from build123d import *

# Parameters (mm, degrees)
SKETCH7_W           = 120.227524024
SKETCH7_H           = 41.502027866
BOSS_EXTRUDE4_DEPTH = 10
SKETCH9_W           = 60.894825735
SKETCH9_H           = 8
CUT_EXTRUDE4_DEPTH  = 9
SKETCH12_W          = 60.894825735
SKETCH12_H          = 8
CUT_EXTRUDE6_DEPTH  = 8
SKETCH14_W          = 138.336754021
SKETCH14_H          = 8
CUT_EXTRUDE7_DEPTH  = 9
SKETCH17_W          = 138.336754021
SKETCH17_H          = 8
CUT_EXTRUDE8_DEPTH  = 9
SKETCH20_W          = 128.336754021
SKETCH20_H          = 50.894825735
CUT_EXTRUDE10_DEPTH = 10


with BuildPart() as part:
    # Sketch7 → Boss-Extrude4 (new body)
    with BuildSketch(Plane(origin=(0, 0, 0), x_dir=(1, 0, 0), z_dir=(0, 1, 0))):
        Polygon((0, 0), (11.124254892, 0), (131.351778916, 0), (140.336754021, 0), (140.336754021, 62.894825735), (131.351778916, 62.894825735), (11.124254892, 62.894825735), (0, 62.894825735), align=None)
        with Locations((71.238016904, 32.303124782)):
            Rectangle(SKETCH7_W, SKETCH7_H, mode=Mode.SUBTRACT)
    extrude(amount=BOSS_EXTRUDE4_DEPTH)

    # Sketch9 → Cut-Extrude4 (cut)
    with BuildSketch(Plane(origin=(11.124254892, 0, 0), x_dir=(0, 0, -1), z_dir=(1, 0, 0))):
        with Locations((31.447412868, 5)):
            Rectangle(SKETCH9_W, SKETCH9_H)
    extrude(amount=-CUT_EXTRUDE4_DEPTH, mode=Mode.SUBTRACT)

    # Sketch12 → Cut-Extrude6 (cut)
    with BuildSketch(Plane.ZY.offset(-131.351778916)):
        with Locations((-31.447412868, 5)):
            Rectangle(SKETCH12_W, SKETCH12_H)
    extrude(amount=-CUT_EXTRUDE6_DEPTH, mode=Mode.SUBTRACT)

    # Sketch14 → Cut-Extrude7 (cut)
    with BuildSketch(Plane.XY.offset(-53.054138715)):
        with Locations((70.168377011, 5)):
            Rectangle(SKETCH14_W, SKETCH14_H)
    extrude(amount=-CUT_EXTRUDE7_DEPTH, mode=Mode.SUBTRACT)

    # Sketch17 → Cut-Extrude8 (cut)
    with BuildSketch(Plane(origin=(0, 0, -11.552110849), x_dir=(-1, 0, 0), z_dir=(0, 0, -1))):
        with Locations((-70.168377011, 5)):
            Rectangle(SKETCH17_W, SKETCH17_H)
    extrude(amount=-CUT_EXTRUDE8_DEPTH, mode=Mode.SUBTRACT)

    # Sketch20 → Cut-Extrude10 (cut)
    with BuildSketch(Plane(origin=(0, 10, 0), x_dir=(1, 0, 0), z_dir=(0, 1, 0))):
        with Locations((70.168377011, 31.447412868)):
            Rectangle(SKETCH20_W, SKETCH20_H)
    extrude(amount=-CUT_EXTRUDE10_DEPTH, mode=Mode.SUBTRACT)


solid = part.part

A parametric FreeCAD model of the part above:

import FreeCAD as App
import Part
import Sketcher
Q = App.Units.Quantity

doc = App.newDocument("Part")
body = doc.addObject("PartDesign::Body", "Body")

sketch1 = body.newObject("Sketcher::SketchObject", "Sketch")
sketch1.AttachmentSupport = (doc.getObject("XZ_Plane"), [""])
sketch1.MapMode = "FlatFace"
sketch1.addGeometry(Part.LineSegment(App.Vector(0, 0, 0), App.Vector(140, 0, 0)), False)
sketch1.addGeometry(Part.LineSegment(App.Vector(140, 0, 0), App.Vector(140, -63, 0)), False)
sketch1.addGeometry(Part.LineSegment(App.Vector(140, -63, 0), App.Vector(0, -63, 0)), False)
sketch1.addGeometry(Part.LineSegment(App.Vector(0, -63, 0), App.Vector(0, 0, 0)), False)
sketch1.addGeometry(Part.LineSegment(App.Vector(131, -12, 0), App.Vector(11, -12, 0)), False)
sketch1.addGeometry(Part.LineSegment(App.Vector(11, -12, 0), App.Vector(11, -53, 0)), False)
sketch1.addGeometry(Part.LineSegment(App.Vector(11, -53, 0), App.Vector(131, -53, 0)), False)
sketch1.addGeometry(Part.LineSegment(App.Vector(131, -53, 0), App.Vector(131, -12, 0)), False)
sketch1.addConstraint(Sketcher.Constraint("Coincident", 0, 2, 1, 1))
sketch1.addConstraint(Sketcher.Constraint("Coincident", 1, 2, 2, 1))
sketch1.addConstraint(Sketcher.Constraint("Coincident", 2, 2, 3, 1))
sketch1.addConstraint(Sketcher.Constraint("Coincident", 3, 2, 0, 1))
sketch1.addConstraint(Sketcher.Constraint("Coincident", 4, 2, 5, 1))
sketch1.addConstraint(Sketcher.Constraint("Coincident", 5, 2, 6, 1))
sketch1.addConstraint(Sketcher.Constraint("Coincident", 6, 2, 7, 1))
sketch1.addConstraint(Sketcher.Constraint("Coincident", 7, 2, 4, 1))
sketch1.addConstraint(Sketcher.Constraint("Horizontal", 0))
sketch1.addConstraint(Sketcher.Constraint("Vertical", 1))
sketch1.addConstraint(Sketcher.Constraint("Horizontal", 2))
sketch1.addConstraint(Sketcher.Constraint("Vertical", 3))
sketch1.addConstraint(Sketcher.Constraint("Horizontal", 4))
sketch1.addConstraint(Sketcher.Constraint("Vertical", 5))
sketch1.addConstraint(Sketcher.Constraint("Horizontal", 6))
sketch1.addConstraint(Sketcher.Constraint("Vertical", 7))
sketch1.addConstraint(Sketcher.Constraint("Coincident", 3, 2, -1, 1))
sketch1.addConstraint(Sketcher.Constraint("DistanceX", 4, 2, 0, 2, Q("129.212499 mm")))
sketch1.addConstraint(Sketcher.Constraint("DistanceX", 0, 1, 0, 2, Q("140.336754 mm")))
sketch1.addConstraint(Sketcher.Constraint("DistanceX", 4, 2, 4, 1, Q("120.227524 mm")))
sketch1.addConstraint(Sketcher.Constraint("DistanceY", 1, 2, 1, 1, Q("62.894826 mm")))
sketch1.addConstraint(Sketcher.Constraint("DistanceY", 5, 2, 5, 1, Q("41.502028 mm")))
sketch1.addConstraint(Sketcher.Constraint("DistanceY", 4, 2, -1, 1, Q("11.552111 mm")))
pad1 = body.newObject("PartDesign::Pad", "Pad")
pad1.Profile = sketch1
pad1.Length = 10
pad1.Reversed = True

sketch2 = body.newObject("Sketcher::SketchObject", "Sketch001")
sketch2.AttachmentSupport = (doc.getObject("YZ_Plane"), [""])
sketch2.MapMode = "FlatFace"
sketch2.AttachmentOffset = App.Placement(App.Vector(0, 0, 11.124255), App.Rotation())
sketch2.addGeometry(Part.LineSegment(App.Vector(9, -1, 0), App.Vector(1, -1, 0)), False)
sketch2.addGeometry(Part.LineSegment(App.Vector(1, -1, 0), App.Vector(1, -62, 0)), False)
sketch2.addGeometry(Part.LineSegment(App.Vector(1, -62, 0), App.Vector(9, -62, 0)), False)
sketch2.addGeometry(Part.LineSegment(App.Vector(9, -62, 0), App.Vector(9, -1, 0)), False)
sketch2.addConstraint(Sketcher.Constraint("Coincident", 0, 2, 1, 1))
sketch2.addConstraint(Sketcher.Constraint("Coincident", 1, 2, 2, 1))
sketch2.addConstraint(Sketcher.Constraint("Coincident", 2, 2, 3, 1))
sketch2.addConstraint(Sketcher.Constraint("Coincident", 3, 2, 0, 1))
sketch2.addConstraint(Sketcher.Constraint("Horizontal", 0))
sketch2.addConstraint(Sketcher.Constraint("Vertical", 1))
sketch2.addConstraint(Sketcher.Constraint("Horizontal", 2))
sketch2.addConstraint(Sketcher.Constraint("Vertical", 3))
sketch2.addConstraint(Sketcher.Constraint("DistanceX", 0, 2, 0, 1, Q("8 mm")))
sketch2.addConstraint(Sketcher.Constraint("DistanceX", -1, 1, 0, 2, Q("1 mm")))
sketch2.addConstraint(Sketcher.Constraint("DistanceY", 0, 2, -1, 1, Q("1 mm")))
sketch2.addConstraint(Sketcher.Constraint("DistanceY", 1, 2, 1, 1, Q("60.894826 mm")))
pocket1 = body.newObject("PartDesign::Pocket", "Pocket")
pocket1.Profile = sketch2
pocket1.Length = 9

sketch3 = body.newObject("Sketcher::SketchObject", "Sketch002")
sketch3.AttachmentSupport = (doc.getObject("YZ_Plane"), [""])
sketch3.MapMode = "FlatFace"
sketch3.AttachmentOffset = App.Placement(App.Vector(0, 0, 131.351779), App.Rotation())
sketch3.addGeometry(Part.LineSegment(App.Vector(9, -62, 0), App.Vector(1, -62, 0)), False)
sketch3.addGeometry(Part.LineSegment(App.Vector(1, -62, 0), App.Vector(1, -1, 0)), False)
sketch3.addGeometry(Part.LineSegment(App.Vector(1, -1, 0), App.Vector(9, -1, 0)), False)
sketch3.addGeometry(Part.LineSegment(App.Vector(9, -1, 0), App.Vector(9, -62, 0)), False)
sketch3.addConstraint(Sketcher.Constraint("Coincident", 0, 2, 1, 1))
sketch3.addConstraint(Sketcher.Constraint("Coincident", 1, 2, 2, 1))
sketch3.addConstraint(Sketcher.Constraint("Coincident", 2, 2, 3, 1))
sketch3.addConstraint(Sketcher.Constraint("Coincident", 3, 2, 0, 1))
sketch3.addConstraint(Sketcher.Constraint("Horizontal", 0))
sketch3.addConstraint(Sketcher.Constraint("Vertical", 1))
sketch3.addConstraint(Sketcher.Constraint("Horizontal", 2))
sketch3.addConstraint(Sketcher.Constraint("Vertical", 3))
sketch3.addConstraint(Sketcher.Constraint("DistanceX", 0, 2, 0, 1, Q("8 mm")))
sketch3.addConstraint(Sketcher.Constraint("DistanceX", -1, 1, 0, 2, Q("1 mm")))
sketch3.addConstraint(Sketcher.Constraint("DistanceY", 1, 2, -1, 1, Q("1 mm")))
sketch3.addConstraint(Sketcher.Constraint("DistanceY", 1, 1, 1, 2, Q("60.894826 mm")))
pocket2 = body.newObject("PartDesign::Pocket", "Pocket001")
pocket2.Profile = sketch3
pocket2.Length = 8
pocket2.Reversed = True

sketch4 = body.newObject("Sketcher::SketchObject", "Sketch003")
sketch4.AttachmentSupport = (doc.getObject("XY_Plane"), [""])
sketch4.MapMode = "FlatFace"
sketch4.AttachmentOffset = App.Placement(App.Vector(0, 0, -53.054139), App.Rotation())
sketch4.addGeometry(Part.LineSegment(App.Vector(1, 9, 0), App.Vector(1, 1, 0)), False)
sketch4.addGeometry(Part.LineSegment(App.Vector(1, 1, 0), App.Vector(139, 1, 0)), False)
sketch4.addGeometry(Part.LineSegment(App.Vector(139, 1, 0), App.Vector(139, 9, 0)), False)
sketch4.addGeometry(Part.LineSegment(App.Vector(139, 9, 0), App.Vector(1, 9, 0)), False)
sketch4.addConstraint(Sketcher.Constraint("Coincident", 0, 2, 1, 1))
sketch4.addConstraint(Sketcher.Constraint("Coincident", 1, 2, 2, 1))
sketch4.addConstraint(Sketcher.Constraint("Coincident", 2, 2, 3, 1))
sketch4.addConstraint(Sketcher.Constraint("Coincident", 3, 2, 0, 1))
sketch4.addConstraint(Sketcher.Constraint("Vertical", 0))
sketch4.addConstraint(Sketcher.Constraint("Horizontal", 1))
sketch4.addConstraint(Sketcher.Constraint("Vertical", 2))
sketch4.addConstraint(Sketcher.Constraint("Horizontal", 3))
sketch4.addConstraint(Sketcher.Constraint("DistanceY", 0, 2, 0, 1, Q("8 mm")))
sketch4.addConstraint(Sketcher.Constraint("DistanceX", -1, 1, 0, 2, Q("1 mm")))
sketch4.addConstraint(Sketcher.Constraint("DistanceY", -1, 1, 0, 2, Q("1 mm")))
sketch4.addConstraint(Sketcher.Constraint("DistanceX", 1, 1, 1, 2, Q("138.336754 mm")))
pocket3 = body.newObject("PartDesign::Pocket", "Pocket002")
pocket3.Profile = sketch4
pocket3.Length = 9

sketch5 = body.newObject("Sketcher::SketchObject", "Sketch004")
sketch5.AttachmentSupport = (doc.getObject("XY_Plane"), [""])
sketch5.MapMode = "FlatFace"
sketch5.AttachmentOffset = App.Placement(App.Vector(0, 0, -11.552111), App.Rotation())
sketch5.addGeometry(Part.LineSegment(App.Vector(139, 9, 0), App.Vector(139, 1, 0)), False)
sketch5.addGeometry(Part.LineSegment(App.Vector(139, 1, 0), App.Vector(1, 1, 0)), False)
sketch5.addGeometry(Part.LineSegment(App.Vector(1, 1, 0), App.Vector(1, 9, 0)), False)
sketch5.addGeometry(Part.LineSegment(App.Vector(1, 9, 0), App.Vector(139, 9, 0)), False)
sketch5.addConstraint(Sketcher.Constraint("Coincident", 0, 2, 1, 1))
sketch5.addConstraint(Sketcher.Constraint("Coincident", 1, 2, 2, 1))
sketch5.addConstraint(Sketcher.Constraint("Coincident", 2, 2, 3, 1))
sketch5.addConstraint(Sketcher.Constraint("Coincident", 3, 2, 0, 1))
sketch5.addConstraint(Sketcher.Constraint("Vertical", 0))
sketch5.addConstraint(Sketcher.Constraint("Horizontal", 1))
sketch5.addConstraint(Sketcher.Constraint("Vertical", 2))
sketch5.addConstraint(Sketcher.Constraint("Horizontal", 3))
sketch5.addConstraint(Sketcher.Constraint("DistanceY", 0, 2, 0, 1, Q("8 mm")))
sketch5.addConstraint(Sketcher.Constraint("DistanceY", -1, 1, 0, 2, Q("1 mm")))
sketch5.addConstraint(Sketcher.Constraint("DistanceX", -1, 1, 1, 2, Q("1 mm")))
sketch5.addConstraint(Sketcher.Constraint("DistanceX", 1, 2, 1, 1, Q("138.336754 mm")))
pocket4 = body.newObject("PartDesign::Pocket", "Pocket003")
pocket4.Profile = sketch5
pocket4.Length = 9
pocket4.Reversed = True

sketch6 = body.newObject("Sketcher::SketchObject", "Sketch005")
sketch6.AttachmentSupport = (doc.getObject("XZ_Plane"), [""])
sketch6.MapMode = "FlatFace"
sketch6.AttachmentOffset = App.Placement(App.Vector(0, 0, -10), App.Rotation())
sketch6.addGeometry(Part.LineSegment(App.Vector(6, -57, 0), App.Vector(6, -6, 0)), False)
sketch6.addGeometry(Part.LineSegment(App.Vector(6, -6, 0), App.Vector(134, -6, 0)), False)
sketch6.addGeometry(Part.LineSegment(App.Vector(134, -6, 0), App.Vector(134, -57, 0)), False)
sketch6.addGeometry(Part.LineSegment(App.Vector(134, -57, 0), App.Vector(6, -57, 0)), False)
sketch6.addConstraint(Sketcher.Constraint("Coincident", 0, 2, 1, 1))
sketch6.addConstraint(Sketcher.Constraint("Coincident", 1, 2, 2, 1))
sketch6.addConstraint(Sketcher.Constraint("Coincident", 2, 2, 3, 1))
sketch6.addConstraint(Sketcher.Constraint("Coincident", 3, 2, 0, 1))
sketch6.addConstraint(Sketcher.Constraint("Vertical", 0))
sketch6.addConstraint(Sketcher.Constraint("Horizontal", 1))
sketch6.addConstraint(Sketcher.Constraint("Vertical", 2))
sketch6.addConstraint(Sketcher.Constraint("Horizontal", 3))
sketch6.addConstraint(Sketcher.Constraint("DistanceX", -1, 1, 0, 2, Q("6 mm")))
sketch6.addConstraint(Sketcher.Constraint("DistanceY", 0, 2, -1, 1, Q("6 mm")))
sketch6.addConstraint(Sketcher.Constraint("DistanceX", 1, 1, 1, 2, Q("128.336754 mm")))
sketch6.addConstraint(Sketcher.Constraint("DistanceY", 0, 1, 0, 2, Q("50.894826 mm")))
pocket5 = body.newObject("PartDesign::Pocket", "Pocket004")
pocket5.Profile = sketch6
pocket5.Length = 10
pocket5.Reversed = True

doc.recompute()
